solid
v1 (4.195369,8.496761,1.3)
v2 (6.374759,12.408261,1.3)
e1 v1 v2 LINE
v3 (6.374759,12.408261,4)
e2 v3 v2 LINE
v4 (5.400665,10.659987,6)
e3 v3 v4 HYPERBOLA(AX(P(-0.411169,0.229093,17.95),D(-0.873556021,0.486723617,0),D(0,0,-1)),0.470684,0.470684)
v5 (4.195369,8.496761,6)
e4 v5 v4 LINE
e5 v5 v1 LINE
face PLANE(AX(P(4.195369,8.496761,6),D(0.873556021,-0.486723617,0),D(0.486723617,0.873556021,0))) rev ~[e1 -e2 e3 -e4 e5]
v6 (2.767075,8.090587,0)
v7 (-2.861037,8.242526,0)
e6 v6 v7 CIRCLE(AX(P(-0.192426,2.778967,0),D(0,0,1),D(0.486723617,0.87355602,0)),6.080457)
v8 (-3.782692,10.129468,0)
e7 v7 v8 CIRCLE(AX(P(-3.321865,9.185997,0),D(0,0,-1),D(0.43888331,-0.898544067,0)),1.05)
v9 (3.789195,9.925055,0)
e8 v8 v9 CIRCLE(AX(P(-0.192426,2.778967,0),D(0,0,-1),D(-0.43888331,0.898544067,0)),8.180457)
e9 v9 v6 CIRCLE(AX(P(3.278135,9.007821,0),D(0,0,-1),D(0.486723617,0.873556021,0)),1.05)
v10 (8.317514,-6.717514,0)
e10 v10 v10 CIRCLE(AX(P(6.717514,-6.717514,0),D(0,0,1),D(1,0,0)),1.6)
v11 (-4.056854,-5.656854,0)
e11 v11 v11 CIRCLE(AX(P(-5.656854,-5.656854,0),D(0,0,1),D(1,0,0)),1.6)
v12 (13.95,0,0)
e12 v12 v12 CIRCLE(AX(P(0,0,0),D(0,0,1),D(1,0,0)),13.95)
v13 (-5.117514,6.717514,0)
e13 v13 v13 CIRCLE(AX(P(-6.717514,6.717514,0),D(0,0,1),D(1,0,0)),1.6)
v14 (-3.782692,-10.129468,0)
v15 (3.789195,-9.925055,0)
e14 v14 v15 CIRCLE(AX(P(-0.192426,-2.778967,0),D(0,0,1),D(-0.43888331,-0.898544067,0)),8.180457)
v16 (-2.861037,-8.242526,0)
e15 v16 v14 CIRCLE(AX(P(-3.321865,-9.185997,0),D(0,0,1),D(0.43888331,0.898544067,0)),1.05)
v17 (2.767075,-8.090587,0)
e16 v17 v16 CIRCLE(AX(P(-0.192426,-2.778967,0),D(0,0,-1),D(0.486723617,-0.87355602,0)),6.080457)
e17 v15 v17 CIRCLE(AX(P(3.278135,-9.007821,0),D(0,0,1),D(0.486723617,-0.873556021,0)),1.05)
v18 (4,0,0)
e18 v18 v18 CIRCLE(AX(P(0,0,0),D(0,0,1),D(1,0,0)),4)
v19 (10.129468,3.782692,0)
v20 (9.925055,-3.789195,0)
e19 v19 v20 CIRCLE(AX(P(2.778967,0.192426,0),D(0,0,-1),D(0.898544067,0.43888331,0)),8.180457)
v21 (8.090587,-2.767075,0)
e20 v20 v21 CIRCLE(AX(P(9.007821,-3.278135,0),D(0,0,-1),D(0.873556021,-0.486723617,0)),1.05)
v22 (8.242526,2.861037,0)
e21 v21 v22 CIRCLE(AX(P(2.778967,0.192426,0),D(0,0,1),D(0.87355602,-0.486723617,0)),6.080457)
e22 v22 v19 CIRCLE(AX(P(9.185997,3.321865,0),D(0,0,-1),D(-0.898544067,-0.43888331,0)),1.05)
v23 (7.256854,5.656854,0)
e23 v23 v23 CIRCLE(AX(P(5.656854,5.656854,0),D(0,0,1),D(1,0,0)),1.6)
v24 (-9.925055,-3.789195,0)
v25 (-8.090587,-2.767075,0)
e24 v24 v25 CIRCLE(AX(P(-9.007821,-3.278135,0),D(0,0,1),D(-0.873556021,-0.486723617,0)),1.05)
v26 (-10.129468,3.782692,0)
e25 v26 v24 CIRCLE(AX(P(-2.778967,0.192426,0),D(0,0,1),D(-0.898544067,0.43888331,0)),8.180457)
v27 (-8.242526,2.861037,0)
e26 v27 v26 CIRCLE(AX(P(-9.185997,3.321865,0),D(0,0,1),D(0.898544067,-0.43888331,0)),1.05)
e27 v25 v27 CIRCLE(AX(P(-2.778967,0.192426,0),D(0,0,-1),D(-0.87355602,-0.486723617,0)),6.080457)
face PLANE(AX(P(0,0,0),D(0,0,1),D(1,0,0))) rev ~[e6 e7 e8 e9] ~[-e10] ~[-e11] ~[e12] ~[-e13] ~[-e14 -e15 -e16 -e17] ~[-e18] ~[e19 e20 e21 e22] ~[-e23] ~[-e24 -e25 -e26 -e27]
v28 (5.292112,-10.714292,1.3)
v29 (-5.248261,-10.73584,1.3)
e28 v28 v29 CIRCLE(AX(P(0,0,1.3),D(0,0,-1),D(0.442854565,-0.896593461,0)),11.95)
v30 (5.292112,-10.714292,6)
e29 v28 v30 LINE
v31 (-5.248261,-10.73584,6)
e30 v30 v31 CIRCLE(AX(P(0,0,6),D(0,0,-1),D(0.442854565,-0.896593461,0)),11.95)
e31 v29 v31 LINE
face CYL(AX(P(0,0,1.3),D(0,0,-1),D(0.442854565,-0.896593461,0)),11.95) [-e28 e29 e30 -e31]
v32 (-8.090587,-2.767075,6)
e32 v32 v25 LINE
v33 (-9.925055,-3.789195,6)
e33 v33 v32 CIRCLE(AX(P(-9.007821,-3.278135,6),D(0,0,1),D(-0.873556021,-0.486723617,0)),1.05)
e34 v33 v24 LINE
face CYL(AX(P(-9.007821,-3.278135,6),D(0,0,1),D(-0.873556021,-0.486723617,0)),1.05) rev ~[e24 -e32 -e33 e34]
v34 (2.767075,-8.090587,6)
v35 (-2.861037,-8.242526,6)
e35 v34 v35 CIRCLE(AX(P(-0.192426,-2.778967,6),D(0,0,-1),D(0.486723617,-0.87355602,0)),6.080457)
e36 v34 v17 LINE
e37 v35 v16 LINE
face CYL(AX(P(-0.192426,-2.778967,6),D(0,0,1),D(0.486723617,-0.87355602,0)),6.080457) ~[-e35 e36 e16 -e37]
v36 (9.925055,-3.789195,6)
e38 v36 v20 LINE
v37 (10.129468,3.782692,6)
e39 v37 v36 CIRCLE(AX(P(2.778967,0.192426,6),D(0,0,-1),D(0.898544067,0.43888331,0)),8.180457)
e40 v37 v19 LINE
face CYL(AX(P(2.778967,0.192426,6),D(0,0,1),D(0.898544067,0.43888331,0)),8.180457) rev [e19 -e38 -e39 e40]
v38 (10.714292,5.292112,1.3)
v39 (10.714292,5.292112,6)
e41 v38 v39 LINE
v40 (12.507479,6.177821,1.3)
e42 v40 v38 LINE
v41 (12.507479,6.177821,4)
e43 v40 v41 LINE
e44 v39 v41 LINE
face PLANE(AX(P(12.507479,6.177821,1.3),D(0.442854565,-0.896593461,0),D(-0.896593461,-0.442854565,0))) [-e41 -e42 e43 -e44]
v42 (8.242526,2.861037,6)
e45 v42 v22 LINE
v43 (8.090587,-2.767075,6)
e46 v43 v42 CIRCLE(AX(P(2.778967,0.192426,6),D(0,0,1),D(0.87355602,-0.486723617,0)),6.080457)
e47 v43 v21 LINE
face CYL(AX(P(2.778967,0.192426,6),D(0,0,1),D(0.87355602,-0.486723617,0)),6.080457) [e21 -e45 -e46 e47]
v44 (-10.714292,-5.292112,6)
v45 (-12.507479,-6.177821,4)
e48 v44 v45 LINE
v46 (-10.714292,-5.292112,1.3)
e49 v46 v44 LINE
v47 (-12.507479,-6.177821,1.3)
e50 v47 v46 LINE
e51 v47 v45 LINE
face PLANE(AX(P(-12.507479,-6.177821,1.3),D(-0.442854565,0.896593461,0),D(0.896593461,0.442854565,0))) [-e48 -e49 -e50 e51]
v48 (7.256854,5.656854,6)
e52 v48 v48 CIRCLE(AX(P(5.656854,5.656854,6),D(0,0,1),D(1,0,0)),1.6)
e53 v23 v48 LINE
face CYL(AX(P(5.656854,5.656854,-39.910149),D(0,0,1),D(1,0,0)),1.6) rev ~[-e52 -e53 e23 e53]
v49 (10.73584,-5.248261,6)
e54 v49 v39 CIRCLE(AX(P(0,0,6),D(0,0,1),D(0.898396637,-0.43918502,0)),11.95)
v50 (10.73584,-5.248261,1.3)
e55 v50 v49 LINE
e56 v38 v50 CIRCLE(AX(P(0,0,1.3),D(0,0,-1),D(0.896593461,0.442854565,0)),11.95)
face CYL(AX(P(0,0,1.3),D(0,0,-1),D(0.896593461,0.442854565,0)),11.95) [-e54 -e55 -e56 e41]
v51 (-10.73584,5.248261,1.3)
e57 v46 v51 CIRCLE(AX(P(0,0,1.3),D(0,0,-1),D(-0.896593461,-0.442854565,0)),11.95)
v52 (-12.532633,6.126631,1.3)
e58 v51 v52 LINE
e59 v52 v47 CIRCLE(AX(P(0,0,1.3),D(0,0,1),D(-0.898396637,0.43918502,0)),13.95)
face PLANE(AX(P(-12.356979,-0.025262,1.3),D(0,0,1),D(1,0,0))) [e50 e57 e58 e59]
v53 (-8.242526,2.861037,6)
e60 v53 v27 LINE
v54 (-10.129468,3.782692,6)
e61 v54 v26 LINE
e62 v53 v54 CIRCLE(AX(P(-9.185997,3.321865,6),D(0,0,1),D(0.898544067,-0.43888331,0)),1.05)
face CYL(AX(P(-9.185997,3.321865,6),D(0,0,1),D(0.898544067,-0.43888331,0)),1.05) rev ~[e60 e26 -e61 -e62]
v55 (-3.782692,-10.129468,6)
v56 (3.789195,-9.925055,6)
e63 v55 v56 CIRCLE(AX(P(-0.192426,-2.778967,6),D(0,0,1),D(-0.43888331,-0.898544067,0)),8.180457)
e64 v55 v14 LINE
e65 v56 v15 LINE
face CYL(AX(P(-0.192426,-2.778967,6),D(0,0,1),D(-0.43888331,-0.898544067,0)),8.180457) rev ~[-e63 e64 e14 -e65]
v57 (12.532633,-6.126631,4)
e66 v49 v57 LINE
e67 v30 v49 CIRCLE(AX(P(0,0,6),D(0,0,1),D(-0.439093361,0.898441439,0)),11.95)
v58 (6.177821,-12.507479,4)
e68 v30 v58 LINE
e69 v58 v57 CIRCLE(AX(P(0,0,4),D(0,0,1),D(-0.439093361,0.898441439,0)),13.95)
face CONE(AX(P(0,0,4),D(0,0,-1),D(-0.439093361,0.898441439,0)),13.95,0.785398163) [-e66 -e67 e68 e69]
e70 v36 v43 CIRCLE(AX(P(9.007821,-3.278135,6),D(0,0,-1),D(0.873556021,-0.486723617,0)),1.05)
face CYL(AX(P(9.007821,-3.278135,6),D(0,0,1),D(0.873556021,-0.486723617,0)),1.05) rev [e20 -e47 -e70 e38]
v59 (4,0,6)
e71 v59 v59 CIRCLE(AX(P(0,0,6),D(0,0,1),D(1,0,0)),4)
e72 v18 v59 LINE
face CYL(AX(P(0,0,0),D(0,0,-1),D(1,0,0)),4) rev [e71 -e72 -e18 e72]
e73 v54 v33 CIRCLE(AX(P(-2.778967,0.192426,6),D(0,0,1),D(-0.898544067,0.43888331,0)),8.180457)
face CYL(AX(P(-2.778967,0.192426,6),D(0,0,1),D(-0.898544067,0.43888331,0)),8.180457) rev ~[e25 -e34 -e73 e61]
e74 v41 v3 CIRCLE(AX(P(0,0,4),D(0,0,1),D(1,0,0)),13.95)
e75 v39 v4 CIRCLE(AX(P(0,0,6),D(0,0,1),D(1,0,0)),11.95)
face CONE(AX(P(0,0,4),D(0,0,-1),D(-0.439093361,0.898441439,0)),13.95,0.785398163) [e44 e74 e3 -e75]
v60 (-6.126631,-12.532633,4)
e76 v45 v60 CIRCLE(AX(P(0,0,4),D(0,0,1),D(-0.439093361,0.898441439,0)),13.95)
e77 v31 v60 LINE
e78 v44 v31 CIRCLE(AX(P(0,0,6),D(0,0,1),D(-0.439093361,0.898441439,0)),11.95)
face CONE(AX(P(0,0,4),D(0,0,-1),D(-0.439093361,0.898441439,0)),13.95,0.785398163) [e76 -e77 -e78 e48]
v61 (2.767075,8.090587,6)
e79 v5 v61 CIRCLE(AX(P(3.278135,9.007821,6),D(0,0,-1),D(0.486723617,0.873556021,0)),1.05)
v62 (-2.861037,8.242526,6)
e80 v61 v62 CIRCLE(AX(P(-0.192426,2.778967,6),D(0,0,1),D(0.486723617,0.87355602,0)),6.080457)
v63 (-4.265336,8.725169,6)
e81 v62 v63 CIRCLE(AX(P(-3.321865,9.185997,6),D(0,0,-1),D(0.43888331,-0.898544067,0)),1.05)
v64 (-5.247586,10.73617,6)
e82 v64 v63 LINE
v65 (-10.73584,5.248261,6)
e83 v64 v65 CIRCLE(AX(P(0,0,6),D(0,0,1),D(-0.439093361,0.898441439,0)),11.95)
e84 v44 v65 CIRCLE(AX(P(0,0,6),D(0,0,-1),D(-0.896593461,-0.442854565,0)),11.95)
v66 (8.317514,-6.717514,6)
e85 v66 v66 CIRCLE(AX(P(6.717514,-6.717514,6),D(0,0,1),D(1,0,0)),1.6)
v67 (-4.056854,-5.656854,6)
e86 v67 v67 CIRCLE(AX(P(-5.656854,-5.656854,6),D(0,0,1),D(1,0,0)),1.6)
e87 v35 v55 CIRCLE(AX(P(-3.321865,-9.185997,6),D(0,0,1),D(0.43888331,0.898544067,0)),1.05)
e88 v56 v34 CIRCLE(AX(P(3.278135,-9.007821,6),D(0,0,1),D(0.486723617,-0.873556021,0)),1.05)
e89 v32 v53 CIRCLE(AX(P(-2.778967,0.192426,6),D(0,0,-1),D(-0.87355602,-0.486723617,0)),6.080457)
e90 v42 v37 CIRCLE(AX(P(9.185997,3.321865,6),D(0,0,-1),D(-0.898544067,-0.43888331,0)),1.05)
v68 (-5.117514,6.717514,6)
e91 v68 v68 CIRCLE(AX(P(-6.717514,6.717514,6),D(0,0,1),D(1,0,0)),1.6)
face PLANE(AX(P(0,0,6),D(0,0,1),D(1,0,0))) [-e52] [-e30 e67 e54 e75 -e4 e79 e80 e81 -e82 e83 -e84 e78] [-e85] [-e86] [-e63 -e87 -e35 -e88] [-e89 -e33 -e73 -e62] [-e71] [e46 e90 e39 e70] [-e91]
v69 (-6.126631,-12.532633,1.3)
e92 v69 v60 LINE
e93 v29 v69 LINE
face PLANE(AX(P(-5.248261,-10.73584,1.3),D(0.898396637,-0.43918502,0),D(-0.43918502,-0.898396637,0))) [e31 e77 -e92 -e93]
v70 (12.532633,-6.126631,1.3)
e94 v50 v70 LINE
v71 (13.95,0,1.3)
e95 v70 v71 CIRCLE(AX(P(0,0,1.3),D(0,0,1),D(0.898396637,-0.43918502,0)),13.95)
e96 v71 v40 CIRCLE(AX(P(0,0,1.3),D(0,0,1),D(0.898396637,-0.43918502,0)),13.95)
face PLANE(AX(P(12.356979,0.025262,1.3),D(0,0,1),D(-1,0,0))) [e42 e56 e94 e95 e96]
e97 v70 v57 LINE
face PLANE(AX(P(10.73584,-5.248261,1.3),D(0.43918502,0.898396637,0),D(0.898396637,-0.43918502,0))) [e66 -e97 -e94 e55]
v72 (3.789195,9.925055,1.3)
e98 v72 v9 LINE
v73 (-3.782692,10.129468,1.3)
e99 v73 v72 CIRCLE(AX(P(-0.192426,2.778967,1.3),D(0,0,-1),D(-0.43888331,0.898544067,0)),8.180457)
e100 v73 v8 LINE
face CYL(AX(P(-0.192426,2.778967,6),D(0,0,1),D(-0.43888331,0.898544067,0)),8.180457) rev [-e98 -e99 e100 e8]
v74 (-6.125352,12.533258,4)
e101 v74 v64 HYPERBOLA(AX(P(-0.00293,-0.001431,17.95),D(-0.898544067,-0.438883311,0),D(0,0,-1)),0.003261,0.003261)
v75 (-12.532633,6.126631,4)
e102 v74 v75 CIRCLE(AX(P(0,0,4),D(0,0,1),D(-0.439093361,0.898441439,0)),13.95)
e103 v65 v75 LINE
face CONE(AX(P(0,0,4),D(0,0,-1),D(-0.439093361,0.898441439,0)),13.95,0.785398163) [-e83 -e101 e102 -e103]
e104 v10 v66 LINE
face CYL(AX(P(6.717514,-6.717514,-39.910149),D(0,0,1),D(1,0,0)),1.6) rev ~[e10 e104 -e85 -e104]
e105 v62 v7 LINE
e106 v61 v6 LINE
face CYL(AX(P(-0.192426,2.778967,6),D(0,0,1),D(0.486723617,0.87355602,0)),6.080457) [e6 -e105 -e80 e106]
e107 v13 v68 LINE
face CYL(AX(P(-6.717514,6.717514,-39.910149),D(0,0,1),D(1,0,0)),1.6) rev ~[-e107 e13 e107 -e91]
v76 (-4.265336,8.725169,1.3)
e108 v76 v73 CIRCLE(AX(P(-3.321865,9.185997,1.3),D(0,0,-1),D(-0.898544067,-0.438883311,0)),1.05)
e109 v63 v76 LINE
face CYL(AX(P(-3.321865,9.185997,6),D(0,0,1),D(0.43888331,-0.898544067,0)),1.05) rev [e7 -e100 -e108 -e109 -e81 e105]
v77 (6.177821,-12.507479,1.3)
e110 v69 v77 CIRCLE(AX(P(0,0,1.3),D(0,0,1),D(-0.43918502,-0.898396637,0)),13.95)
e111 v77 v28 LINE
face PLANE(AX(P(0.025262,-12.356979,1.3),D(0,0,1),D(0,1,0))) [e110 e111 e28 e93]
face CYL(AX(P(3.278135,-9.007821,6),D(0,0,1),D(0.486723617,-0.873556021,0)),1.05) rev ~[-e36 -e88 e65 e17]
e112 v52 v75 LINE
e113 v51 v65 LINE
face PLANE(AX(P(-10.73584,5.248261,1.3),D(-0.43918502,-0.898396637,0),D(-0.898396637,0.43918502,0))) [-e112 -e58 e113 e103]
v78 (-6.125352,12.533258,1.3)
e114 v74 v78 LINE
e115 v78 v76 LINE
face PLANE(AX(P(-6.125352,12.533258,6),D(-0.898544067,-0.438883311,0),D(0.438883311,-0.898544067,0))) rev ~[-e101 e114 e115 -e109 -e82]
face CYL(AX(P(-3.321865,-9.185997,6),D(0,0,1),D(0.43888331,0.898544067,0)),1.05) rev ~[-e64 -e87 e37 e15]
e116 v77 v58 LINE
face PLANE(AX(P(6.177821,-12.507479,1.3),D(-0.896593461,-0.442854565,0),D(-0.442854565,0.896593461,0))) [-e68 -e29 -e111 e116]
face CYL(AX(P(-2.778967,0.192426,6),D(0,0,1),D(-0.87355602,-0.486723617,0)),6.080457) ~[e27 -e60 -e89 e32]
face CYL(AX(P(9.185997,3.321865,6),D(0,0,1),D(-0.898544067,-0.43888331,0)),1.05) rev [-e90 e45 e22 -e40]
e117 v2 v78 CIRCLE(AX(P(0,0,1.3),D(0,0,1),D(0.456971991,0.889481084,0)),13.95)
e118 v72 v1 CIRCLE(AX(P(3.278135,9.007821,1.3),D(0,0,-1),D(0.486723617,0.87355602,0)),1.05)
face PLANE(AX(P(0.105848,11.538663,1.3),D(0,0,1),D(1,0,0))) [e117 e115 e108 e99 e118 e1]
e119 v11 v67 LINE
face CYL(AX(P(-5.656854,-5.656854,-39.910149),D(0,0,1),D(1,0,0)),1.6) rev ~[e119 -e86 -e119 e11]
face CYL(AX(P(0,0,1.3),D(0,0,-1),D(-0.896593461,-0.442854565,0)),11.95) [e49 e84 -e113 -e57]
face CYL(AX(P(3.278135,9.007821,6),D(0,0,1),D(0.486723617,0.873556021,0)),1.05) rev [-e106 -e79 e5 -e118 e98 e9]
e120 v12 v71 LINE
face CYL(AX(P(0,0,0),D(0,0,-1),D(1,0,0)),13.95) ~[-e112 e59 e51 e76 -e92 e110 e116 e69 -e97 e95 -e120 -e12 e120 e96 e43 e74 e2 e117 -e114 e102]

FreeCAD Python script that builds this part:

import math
import FreeCAD as App
import Part
import Sketcher
Q = App.Units.Quantity


def edges_at(feature, points):
    """Names of the edges that pass closest to the given points."""
    edges = feature.Shape.Edges
    near = lambda p: min(range(len(edges)), key=lambda i: edges[i].distToShape(Part.Vertex(*p))[0])
    return sorted({f"Edge{near(p) + 1}" for p in points})

doc = App.newDocument("Part")
body = doc.addObject("PartDesign::Body", "Body")

# Sketch on XY plane
sketch1 = body.newObject("Sketcher::SketchObject", "Sketch")
sketch1.AttachmentSupport = (doc.getObject("XY_Plane"), [""])
sketch1.MapMode = "FlatFace"
sketch1.addGeometry([
    Part.Circle(App.Vector(0, 0, 0), App.Vector(0, 0, 1), 13.9),
    Part.Circle(App.Vector(0, 0, 0), App.Vector(0, 0, 1), 4),
], False)
sketch1.addConstraint([
    Sketcher.Constraint("Coincident", 0, 3, -1, 1),
    Sketcher.Constraint("Coincident", 1, 3, -1, 1),
    Sketcher.Constraint("Diameter", 1, Q("8 mm")),
    Sketcher.Constraint("Diameter", 0, Q("27.9 mm")),
])
pad1 = body.newObject("PartDesign::Pad", "Pad")
pad1.Profile = sketch1
pad1.Length = 6

# Sketch on XY plane
sketch2 = body.newObject("Sketcher::SketchObject", "Sketch001")
sketch2.AttachmentSupport = (doc.getObject("XY_Plane"), [""])
sketch2.MapMode = "FlatFace"
sketch2.addGeometry([
    Part.Circle(App.Vector(5.7, 5.7, 0), App.Vector(0, 0, 1), 1.6),
    Part.Circle(App.Vector(6.7, -6.7, 0), App.Vector(0, 0, 1), 1.6),
    Part.Circle(App.Vector(-5.7, -5.7, 0), App.Vector(0, 0, 1), 1.6),
    Part.Circle(App.Vector(-6.7, 6.7, 0), App.Vector(0, 0, 1), 1.6),
], False)
sketch2.addConstraint([
    Sketcher.Constraint("Equal", 0, 1),
    Sketcher.Constraint("Equal", 1, 2),
    Sketcher.Constraint("Equal", 2, 3),
    Sketcher.Constraint("Symmetric", 0, 3, 2, 3, -1, 1),
    Sketcher.Constraint("Symmetric", 1, 3, 3, 3, -1, 1),
    Sketcher.Constraint("Diameter", 0, Q("3.2 mm")),
    Sketcher.Constraint("DistanceX", 0, 3, 1, 3, Q("1.06066 mm")),
    Sketcher.Constraint("DistanceY", 1, 3, 0, 3, Q("12.374369 mm")),
    Sketcher.Constraint("DistanceX", 2, 3, 1, 3, Q("12.374369 mm")),
    Sketcher.Constraint("DistanceY", 1, 3, 2, 3, Q("1.06066 mm")),
])
doc.recompute()
hole = body.newObject("PartDesign::Hole", "Hole")
hole.Profile = sketch2
hole.ThreadType = "None"
hole.Diameter = 3.2
hole.DepthType = "ThroughAll"
hole.Reversed = True

# Sketch on XY plane
sketch3 = body.newObject("Sketcher::SketchObject", "Sketch002")
sketch3.AttachmentSupport = (doc.getObject("XY_Plane"), [""])
sketch3.MapMode = "FlatFace"
sketch3.AttachmentOffset = App.Placement(App.Vector(0, 0, 6), App.Rotation())
sketch3.addGeometry([
    Part.ArcOfCircle(Part.Circle(App.Vector(-2.8, 0.2, 0), App.Vector(0, 0, 1), 8.2), math.radians(154), math.radians(209)),  # 0
    Part.ArcOfCircle(Part.Circle(App.Vector(-9, -3.3, 0), App.Vector(0, 0, 1), 1.1), math.radians(-151), math.radians(29)),  # 1
    Part.ArcOfCircle(Part.Circle(App.Vector(-2.8, 0.2, 0), App.Vector(0, 0, 1), 6.1), math.radians(154), math.radians(209)),  # 2
    Part.ArcOfCircle(Part.Circle(App.Vector(-9.2, 3.3, 0), App.Vector(0, 0, 1), 1.1), math.radians(-26), math.radians(154)),  # 3
    Part.ArcOfCircle(Part.Circle(App.Vector(2.8, 0.2, 0), App.Vector(0, 0, 1), 8.2), math.radians(-29), math.radians(26)),  # 4
    Part.ArcOfCircle(Part.Circle(App.Vector(9.2, 3.3, 0), App.Vector(0, 0, 1), 1.1), math.radians(26), math.radians(206)),  # 5
    Part.ArcOfCircle(Part.Circle(App.Vector(2.8, 0.2, 0), App.Vector(0, 0, 1), 6.1), math.radians(-29), math.radians(26)),  # 6
    Part.ArcOfCircle(Part.Circle(App.Vector(9, -3.3, 0), App.Vector(0, 0, 1), 1.1), math.radians(151), math.radians(331)),  # 7
], False)
sketch3.addConstraint([
    Sketcher.Constraint("Tangent", 0, 2, 1, 1),
    Sketcher.Constraint("Tangent", 1, 2, 2, 2),
    Sketcher.Constraint("Tangent", 2, 1, 3, 1),
    Sketcher.Constraint("Tangent", 3, 2, 0, 1),
    Sketcher.Constraint("Tangent", 4, 2, 5, 1),
    Sketcher.Constraint("Tangent", 5, 2, 6, 2),
    Sketcher.Constraint("Tangent", 6, 1, 7, 1),
    Sketcher.Constraint("Tangent", 7, 2, 4, 1),
    Sketcher.Constraint("Coincident", 2, 3, 0, 3),
    Sketcher.Constraint("Coincident", 6, 3, 4, 3),
    Sketcher.Constraint("Equal", 0, 4),
    Sketcher.Constraint("Equal", 3, 5),
    Sketcher.Constraint("Symmetric", 0, 3, 4, 3, -2),
    Sketcher.Constraint("Horizontal", 3, 3, 5, 3),
    Sketcher.Constraint("Horizontal", 1, 3, 7, 3),
    Sketcher.Constraint("Radius", 1, Q("1.05 mm")),
    Sketcher.Constraint("DistanceY", 1, 3, 3, 3, Q("6.6 mm")),
    Sketcher.Constraint("Radius", 0, Q("8.180457 mm")),
    Sketcher.Constraint("DistanceY", 1, 2, 2, 3, Q("2.959502 mm")),
    Sketcher.Constraint("DistanceX", 1, 3, -1, 1, Q("9.007821 mm")),
    Sketcher.Constraint("DistanceY", -1, 1, 0, 3, Q("0.192426 mm")),
])
pocket1 = body.newObject("PartDesign::Pocket", "Pocket")
pocket1.Profile = sketch3
pocket1.Length = 6
doc.recompute()

polarpattern = body.newObject("PartDesign::PolarPattern", "PolarPattern")
polarpattern.Originals = [pocket1]
polarpattern.Axis = (doc.getObject("Z_Axis"), [""])
polarpattern.Angle = 90
polarpattern.Occurrences = 2
body.Tip = polarpattern

# Sketch on XY plane
sketch4 = body.newObject("Sketcher::SketchObject", "Sketch003")
sketch4.AttachmentSupport = (doc.getObject("XY_Plane"), [""])
sketch4.MapMode = "FlatFace"
sketch4.AttachmentOffset = App.Placement(App.Vector(0, 0, 6), App.Rotation())
sketch4.addGeometry([
    Part.LineSegment(App.Vector(-6.1, 12.5, 0), App.Vector(-4.3, 8.7, 0)),  # 0
    Part.ArcOfCircle(Part.Circle(App.Vector(-3.3, 9.2, 0), App.Vector(0, 0, 1), 1.1), math.radians(116), math.radians(206)),  # 1
    Part.ArcOfCircle(Part.Circle(App.Vector(-0.2, 2.8, 0), App.Vector(0, 0, 1), 8.2), math.radians(61), math.radians(116)),  # 2
    Part.ArcOfCircle(Part.Circle(App.Vector(3.3, 9, 0), App.Vector(0, 0, 1), 1.1), math.radians(-29), math.radians(61)),  # 3
    Part.LineSegment(App.Vector(4.2, 8.5, 0), App.Vector(6.4, 12.4, 0)),  # 4
    Part.ArcOfCircle(Part.Circle(App.Vector(0, 0, 0), App.Vector(0, 0, 1), 13.9), math.radians(63), math.radians(116)),  # 5
], False)
sketch4.addConstraint([
    Sketcher.Constraint("Tangent", 0, 2, 1, 2),
    Sketcher.Constraint("Tangent", 1, 1, 2, 2),
    Sketcher.Constraint("Tangent", 2, 1, 3, 2),
    Sketcher.Constraint("Tangent", 3, 1, 4, 1),
    Sketcher.Constraint("Coincident", 4, 2, 5, 1),
    Sketcher.Constraint("Coincident", 5, 2, 0, 1),
    Sketcher.Constraint("Coincident", 5, 3, -1, 1),
    Sketcher.Constraint("Equal", 1, 3),
    Sketcher.Constraint("Radius", 1, Q("1.05 mm")),
    Sketcher.Constraint("Radius", 5, Q("13.95 mm")),
    Sketcher.Constraint("DistanceX", 1, 3, 3, 3, Q("6.6 mm")),
    Sketcher.Constraint("Radius", 2, Q("8.180457 mm")),
    Sketcher.Constraint("DistanceY", 2, 3, 0, 2, Q("5.946202 mm")),
    Sketcher.Constraint("DistanceY", 0, 2, 1, 1, Q("1.404299 mm")),
    Sketcher.Constraint("DistanceY", 3, 1, 4, 2, Q("3.9115 mm")),
    Sketcher.Constraint("DistanceY", -1, 1, 3, 3, Q("9.007821 mm")),
    Sketcher.Constraint("DistanceX", -1, 1, 3, 1, Q("4.195369 mm")),
])
pocket2 = body.newObject("PartDesign::Pocket", "Pocket001")
pocket2.Profile = sketch4
pocket2.Length = 4.7
doc.recompute()

chamfer = body.newObject("PartDesign::Chamfer", "Chamfer")
chamfer.Base = (pocket2, edges_at(pocket2, [(-7.388, -11.833, 6)]))
chamfer.Size = 2

# Sketch on XY plane
sketch5 = body.newObject("Sketcher::SketchObject", "Sketch004")
sketch5.AttachmentSupport = (doc.getObject("XY_Plane"), [""])
sketch5.MapMode = "FlatFace"
sketch5.AttachmentOffset = App.Placement(App.Vector(0, 0, 1.3), App.Rotation())
sketch5.addGeometry([
    Part.LineSegment(App.Vector(-10.7, 5.2, 0), App.Vector(-12.5, 6.1, 0)),
    Part.ArcOfCircle(Part.Circle(App.Vector(0, 0, 0), App.Vector(0, 0, 1), 13.9), math.radians(154), math.radians(206)),
    Part.LineSegment(App.Vector(-12.5, -6.2, 0), App.Vector(-10.7, -5.3, 0)),
    Part.ArcOfCircle(Part.Circle(App.Vector(0, 0, 0), App.Vector(0, 0, 1), 11.9), math.radians(154), math.radians(206)),
], False)
sketch5.addConstraint([
    Sketcher.Constraint("Coincident", 0, 2, 1, 1),
    Sketcher.Constraint("Coincident", 1, 2, 2, 1),
    Sketcher.Constraint("Coincident", 2, 2, 3, 2),
    Sketcher.Constraint("Coincident", 3, 1, 0, 1),
    Sketcher.Constraint("Coincident", 1, 3, -1, 1),
    Sketcher.Constraint("Coincident", 3, 3, -1, 1),
    Sketcher.Constraint("Radius", 1, Q("13.95 mm")),
    Sketcher.Constraint("Radius", 3, Q("11.95 mm")),
    Sketcher.Constraint("DistanceY", -1, 1, 0, 2, Q("6.126631 mm")),
    Sketcher.Constraint("DistanceX", 1, 2, -1, 1, Q("12.507479 mm")),
    Sketcher.Constraint("DistanceX", 2, 2, -1, 1, Q("10.714292 mm")),
    Sketcher.Constraint("DistanceX", 3, 1, -1, 1, Q("10.73584 mm")),
])
pocket3 = body.newObject("PartDesign::Pocket", "Pocket002")
pocket3.Profile = sketch5
pocket3.Length = 4.7
pocket3.Reversed = True
doc.recompute()

polarpattern2 = body.newObject("PartDesign::PolarPattern", "PolarPattern001")
polarpattern2.Originals = [pocket3]
polarpattern2.Axis = (doc.getObject("Z_Axis"), [""])
polarpattern2.Angle = 180
polarpattern2.Occurrences = 3
body.Tip = polarpattern2

doc.recompute()
